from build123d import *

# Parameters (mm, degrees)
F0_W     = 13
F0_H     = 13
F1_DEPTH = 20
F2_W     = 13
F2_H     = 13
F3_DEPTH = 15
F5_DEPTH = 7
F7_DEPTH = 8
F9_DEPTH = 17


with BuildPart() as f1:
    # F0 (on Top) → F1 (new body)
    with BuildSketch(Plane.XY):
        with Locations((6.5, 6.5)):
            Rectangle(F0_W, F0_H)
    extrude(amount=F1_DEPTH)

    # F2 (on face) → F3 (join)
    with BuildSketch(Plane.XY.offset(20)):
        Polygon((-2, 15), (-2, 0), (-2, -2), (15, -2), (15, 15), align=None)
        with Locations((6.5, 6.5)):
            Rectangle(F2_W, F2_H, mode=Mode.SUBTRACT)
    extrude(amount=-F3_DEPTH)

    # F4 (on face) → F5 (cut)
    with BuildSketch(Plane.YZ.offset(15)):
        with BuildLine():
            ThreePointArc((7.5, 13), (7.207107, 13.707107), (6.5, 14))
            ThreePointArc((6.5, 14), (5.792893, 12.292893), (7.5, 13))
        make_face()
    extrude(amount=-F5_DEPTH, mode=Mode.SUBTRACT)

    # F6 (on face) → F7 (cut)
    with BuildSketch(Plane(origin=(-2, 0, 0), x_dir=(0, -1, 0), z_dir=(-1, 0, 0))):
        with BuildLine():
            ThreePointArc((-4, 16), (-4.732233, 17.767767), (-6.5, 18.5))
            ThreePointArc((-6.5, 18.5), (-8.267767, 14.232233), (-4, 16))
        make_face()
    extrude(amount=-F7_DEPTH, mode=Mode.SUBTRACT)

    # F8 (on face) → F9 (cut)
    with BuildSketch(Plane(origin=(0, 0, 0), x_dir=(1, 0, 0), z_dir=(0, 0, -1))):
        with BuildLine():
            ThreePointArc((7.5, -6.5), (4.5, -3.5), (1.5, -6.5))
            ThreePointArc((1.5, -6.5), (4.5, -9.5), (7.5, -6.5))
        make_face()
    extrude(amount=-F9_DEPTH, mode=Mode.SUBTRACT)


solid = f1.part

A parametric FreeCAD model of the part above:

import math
import FreeCAD as App
import Part
import Sketcher

V = App.Vector
Q = App.Units.Quantity


def add_polygon(sketch, points):
    """Adds a closed chain of lines whose ends are joined by coincident constraints."""
    first, n = sketch.GeometryCount, len(points)
    for a, b in zip(points, points[1:] + points[:1]):
        sketch.addGeometry(Part.LineSegment(App.Vector(*a, 0), App.Vector(*b, 0)), False)
    for i in range(n):
        sketch.addConstraint(Sketcher.Constraint("Coincident", first + i, 2, first + (i + 1) % n, 1))

doc = App.newDocument("Part")
params = doc.addObject("Spreadsheet::Sheet", "Params")
for row, (alias, value) in enumerate([
    ("sketch1_width", "13 mm"),
    ("pad1_length", "20 mm"),
    ("sketch2_width", "17 mm"),
    ("sketch2_width2", "13 mm"),
    ("pad2_length", "15 mm"),
    ("sketch3_radius", "0.999999 mm"),
    ("pocket1_length", "7 mm"),
    ("sketch4_radius", "2.5 mm"),
    ("pocket2_length", "8 mm"),
    ("sketch5_diameter", "6 mm"),
    ("pocket3_length", "17 mm"),
], start=1):
    params.set(f"A{row}", alias)
    params.set(f"B{row}", "=" + value)
    params.setAlias(f"B{row}", alias)

body = doc.addObject("PartDesign::Body", "Body")

sketch1 = doc.addObject("Sketcher::SketchObject", "Sketch")
body.addObject(sketch1)
sketch1.AttachmentSupport = (doc.XY_Plane, [""])
sketch1.MapMode = "FlatFace"
add_polygon(sketch1, [(0, 13), (0, 0), (13, 0), (13, 13)])
sketch1.addConstraint(Sketcher.Constraint("Vertical", 0))
sketch1.addConstraint(Sketcher.Constraint("Horizontal", 1))
sketch1.addConstraint(Sketcher.Constraint("Vertical", 2))
sketch1.addConstraint(Sketcher.Constraint("Horizontal", 3))
sketch1.addConstraint(Sketcher.Constraint("Coincident", 0, 2, -1, 1))
sketch1.addConstraint(Sketcher.Constraint("Equal", 3, 0))
sketch1.addConstraint(Sketcher.Constraint("DistanceX", 1, 1, 1, 2, Q("13 mm")))
sketch1.setExpression("Constraints[10]", "Params.sketch1_width")
pad1 = doc.addObject("PartDesign::Pad", "Pad")
body.addObject(pad1)
pad1.Profile = sketch1
pad1.setExpression("Length", "Params.pad1_length")

sketch2 = doc.addObject("Sketcher::SketchObject", "Sketch001")
body.addObject(sketch2)
sketch2.AttachmentSupport = (doc.XY_Plane, [""])
sketch2.MapMode = "FlatFace"
sketch2.AttachmentOffset = App.Placement(V(0, 0, 20), App.Rotation())
add_polygon(sketch2, [(-2, 15), (-2, -2), (15, -2), (15, 15)])
add_polygon(sketch2, [(13, 0), (0, 0), (0, 13), (13, 13)])
sketch2.addConstraint(Sketcher.Constraint("Vertical", 0))
sketch2.addConstraint(Sketcher.Constraint("Horizontal", 1))
sketch2.addConstraint(Sketcher.Constraint("Vertical", 2))
sketch2.addConstraint(Sketcher.Constraint("Horizontal", 3))
sketch2.addConstraint(Sketcher.Constraint("Horizontal", 4))
sketch2.addConstraint(Sketcher.Constraint("Vertical", 5))
sketch2.addConstraint(Sketcher.Constraint("Horizontal", 6))
sketch2.addConstraint(Sketcher.Constraint("Vertical", 7))
sketch2.addConstraint(Sketcher.Constraint("Coincident", 4, 2, -1, 1))
sketch2.addConstraint(Sketcher.Constraint("Equal", 3, 0))
sketch2.addConstraint(Sketcher.Constraint("Equal", 6, 5))
sketch2.addConstraint(Sketcher.Constraint("DistanceX", 1, 1, 1, 2, Q("17 mm")))
sketch2.addConstraint(Sketcher.Constraint("DistanceX", 4, 2, 4, 1, Q("13 mm")))
sketch2.addConstraint(Sketcher.Constraint("DistanceX", 0, 2, -1, 1, Q("2 mm")))
sketch2.addConstraint(Sketcher.Constraint("DistanceY", 0, 2, -1, 1, Q("2 mm")))
sketch2.setExpression("Constraints[19]", "Params.sketch2_width")
sketch2.setExpression("Constraints[20]", "Params.sketch2_width2")
pad2 = doc.addObject("PartDesign::Pad", "Pad001")
body.addObject(pad2)
pad2.Profile = sketch2
pad2.setExpression("Length", "Params.pad2_length")
pad2.Reversed = True

sketch3 = doc.addObject("Sketcher::SketchObject", "Sketch002")
body.addObject(sketch3)
sketch3.AttachmentSupport = (doc.YZ_Plane, [""])
sketch3.MapMode = "FlatFace"
sketch3.AttachmentOffset = App.Placement(V(0, 0, 15), App.Rotation())
sketch3.addGeometry(Part.ArcOfCircle(Part.Circle(V(6.5, 13, 0), V(0, 0, 1), 1), math.radians(0), math.radians(90)), False)
sketch3.addGeometry(Part.ArcOfCircle(Part.Circle(V(6.5, 13, 0), V(0, 0, 1), 1), math.radians(90), math.radians(360)), False)
sketch3.addConstraint(Sketcher.Constraint("Tangent", 0, 1, 1, 2))
sketch3.addConstraint(Sketcher.Constraint("Coincident", 1, 1, 0, 2))
sketch3.addConstraint(Sketcher.Constraint("Horizontal", 1, 3, 0, 1))
sketch3.addConstraint(Sketcher.Constraint("Vertical", 0, 3, 1, 1))
sketch3.addConstraint(Sketcher.Constraint("Radius", 0, Q("0.999999 mm")))
sketch3.addConstraint(Sketcher.Constraint("DistanceY", -1, 1, 0, 3, Q("13.000001 mm")))
sketch3.addConstraint(Sketcher.Constraint("DistanceX", -1, 1, 0, 3, Q("6.500001 mm")))
sketch3.setExpression("Constraints[4]", "Params.sketch3_radius")
pocket1 = doc.addObject("PartDesign::Pocket", "Pocket")
body.addObject(pocket1)
pocket1.Profile = sketch3
pocket1.setExpression("Length", "Params.pocket1_length")

sketch4 = doc.addObject("Sketcher::SketchObject", "Sketch003")
body.addObject(sketch4)
sketch4.AttachmentSupport = (doc.YZ_Plane, [""])
sketch4.MapMode = "FlatFace"
sketch4.AttachmentOffset = App.Placement(V(0, 0, -2), App.Rotation())
sketch4.addGeometry(Part.ArcOfCircle(Part.Circle(V(6.5, 16, 0), V(0, 0, 1), 2.5), math.radians(90), math.radians(180)), False)
sketch4.addGeometry(Part.ArcOfCircle(Part.Circle(V(6.5, 16, 0), V(0, 0, 1), 2.5), math.radians(180), math.radians(450)), False)
sketch4.addConstraint(Sketcher.Constraint("Tangent", 0, 1, 1, 2))
sketch4.addConstraint(Sketcher.Constraint("Coincident", 1, 1, 0, 2))
sketch4.addConstraint(Sketcher.Constraint("Horizontal", 0, 3, 1, 1))
sketch4.addConstraint(Sketcher.Constraint("Vertical", 1, 3, 0, 1))
sketch4.addConstraint(Sketcher.Constraint("Radius", 0, Q("2.5 mm")))
sketch4.addConstraint(Sketcher.Constraint("DistanceY", -1, 1, 0, 3, Q("16 mm")))
sketch4.addConstraint(Sketcher.Constraint("DistanceX", -1, 1, 1, 1, Q("4 mm")))
sketch4.setExpression("Constraints[4]", "Params.sketch4_radius")
pocket2 = doc.addObject("PartDesign::Pocket", "Pocket001")
body.addObject(pocket2)
pocket2.Profile = sketch4
pocket2.setExpression("Length", "Params.pocket2_length")
pocket2.Reversed = True

sketch5 = doc.addObject("Sketcher::SketchObject", "Sketch004")
body.addObject(sketch5)
sketch5.AttachmentSupport = (doc.XY_Plane, [""])
sketch5.MapMode = "FlatFace"
sketch5.addGeometry(Part.Circle(V(4.5, 6.5, 0), V(0, 0, 1), 3), False)
sketch5.addConstraint(Sketcher.Constraint("Diameter", 0, Q("6 mm")))
sketch5.addConstraint(Sketcher.Constraint("DistanceX", -1, 1, 0, 3, Q("4.5 mm")))
sketch5.addConstraint(Sketcher.Constraint("DistanceY", -1, 1, 0, 3, Q("6.5 mm")))
sketch5.setExpression("Constraints[0]", "Params.sketch5_diameter")
pocket3 = doc.addObject("PartDesign::Pocket", "Pocket002")
body.addObject(pocket3)
pocket3.Profile = sketch5
pocket3.setExpression("Length", "Params.pocket3_length")
pocket3.Reversed = True

doc.recompute()
